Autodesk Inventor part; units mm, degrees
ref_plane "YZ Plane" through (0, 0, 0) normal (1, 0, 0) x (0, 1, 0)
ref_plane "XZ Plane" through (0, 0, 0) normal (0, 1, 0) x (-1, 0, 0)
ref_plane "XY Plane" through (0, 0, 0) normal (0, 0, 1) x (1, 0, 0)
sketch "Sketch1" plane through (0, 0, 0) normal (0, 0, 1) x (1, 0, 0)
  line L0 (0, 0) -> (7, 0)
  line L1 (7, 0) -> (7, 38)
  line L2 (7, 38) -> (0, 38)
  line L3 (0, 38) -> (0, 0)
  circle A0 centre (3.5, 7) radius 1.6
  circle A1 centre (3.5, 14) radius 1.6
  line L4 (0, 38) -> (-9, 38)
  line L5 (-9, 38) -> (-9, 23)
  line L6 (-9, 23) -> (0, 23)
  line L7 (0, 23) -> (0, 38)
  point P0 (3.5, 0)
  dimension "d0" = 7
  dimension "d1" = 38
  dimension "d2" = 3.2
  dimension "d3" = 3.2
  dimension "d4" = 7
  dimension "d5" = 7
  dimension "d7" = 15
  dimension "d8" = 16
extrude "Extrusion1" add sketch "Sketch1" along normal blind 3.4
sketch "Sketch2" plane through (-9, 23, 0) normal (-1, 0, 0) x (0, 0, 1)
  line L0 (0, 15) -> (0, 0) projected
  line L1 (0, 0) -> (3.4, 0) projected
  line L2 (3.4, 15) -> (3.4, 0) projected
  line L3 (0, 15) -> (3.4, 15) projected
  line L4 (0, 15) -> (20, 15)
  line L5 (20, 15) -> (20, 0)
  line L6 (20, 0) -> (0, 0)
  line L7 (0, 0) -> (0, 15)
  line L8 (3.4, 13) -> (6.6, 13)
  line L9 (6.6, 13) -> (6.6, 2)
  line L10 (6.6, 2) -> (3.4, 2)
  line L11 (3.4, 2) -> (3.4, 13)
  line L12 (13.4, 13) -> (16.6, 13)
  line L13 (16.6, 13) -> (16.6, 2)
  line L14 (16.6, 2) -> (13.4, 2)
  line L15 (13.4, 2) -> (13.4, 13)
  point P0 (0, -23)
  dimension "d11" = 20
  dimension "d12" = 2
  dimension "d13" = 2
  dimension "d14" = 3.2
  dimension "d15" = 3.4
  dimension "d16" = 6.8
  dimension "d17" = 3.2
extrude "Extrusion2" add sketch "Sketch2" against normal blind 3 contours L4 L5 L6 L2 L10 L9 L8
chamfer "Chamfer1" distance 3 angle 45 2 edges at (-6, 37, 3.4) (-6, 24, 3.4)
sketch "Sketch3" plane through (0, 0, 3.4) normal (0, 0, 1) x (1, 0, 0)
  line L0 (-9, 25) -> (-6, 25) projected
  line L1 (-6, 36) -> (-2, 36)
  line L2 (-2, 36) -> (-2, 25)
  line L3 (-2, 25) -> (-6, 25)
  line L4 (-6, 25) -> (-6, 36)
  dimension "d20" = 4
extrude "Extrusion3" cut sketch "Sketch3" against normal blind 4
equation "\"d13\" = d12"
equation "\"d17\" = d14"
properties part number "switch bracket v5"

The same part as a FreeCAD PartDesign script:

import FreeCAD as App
import Part
import Sketcher
from FreeCAD import Vector


def edges_at(feature, points):
    """Names of the edges that pass closest to the given points."""
    edges = feature.Shape.Edges
    near = lambda p: min(range(len(edges)), key=lambda i: edges[i].distToShape(Part.Vertex(*p))[0])
    return sorted({f"Edge{near(p) + 1}" for p in points})

doc = App.newDocument("Part")
params = doc.addObject("Spreadsheet::Sheet", "Params")
for row, (alias, value) in enumerate([
    ("sketch1_diameter", "3.2 mm"),
    ("sketch1_width", "7 mm"),
    ("sketch1_width2", "16 mm"),
    ("sketch1_height", "38 mm"),
    ("sketch1_height2", "15 mm"),
    ("pad1_length", "3.4 mm"),
    ("sketch2_width", "2 mm"),
    ("sketch2_height", "3.2 mm"),
    ("sketch2_width2", "11 mm"),
    ("pad2_length", "3 mm"),
    ("chamfer_size", "3 mm"),
    ("sketch3_width", "4 mm"),
    ("sketch3_height", "11 mm"),
    ("pocket1_length", "4 mm"),
], start=1):
    params.set(f"A{row}", alias)
    params.set(f"B{row}", "=" + value)
    params.setAlias(f"B{row}", alias)

body = doc.addObject("PartDesign::Body", "Body")

sketch1 = body.newObject("Sketcher::SketchObject", "Sketch")
sketch1.AttachmentSupport = (doc.getObject("XY_Plane"), [""])
sketch1.MapMode = "FlatFace"
sketch1.addGeometry([
    Part.LineSegment(Vector(0, 23, 0), Vector(0, 0, 0)),
    Part.LineSegment(Vector(0, 0, 0), Vector(7, 0, 0)),
    Part.LineSegment(Vector(7, 0, 0), Vector(7, 38, 0)),
    Part.LineSegment(Vector(7, 38, 0), Vector(-9, 38, 0)),
    Part.LineSegment(Vector(-9, 38, 0), Vector(-9, 23, 0)),
    Part.LineSegment(Vector(-9, 23, 0), Vector(0, 23, 0)),
    Part.Circle(Vector(3.5, 7, 0), Vector(0, 0, 1), 1.6),
    Part.Circle(Vector(3.5, 14, 0), Vector(0, 0, 1), 1.6),
], False)
sketch1.addConstraint([
    Sketcher.Constraint("Coincident", 0, 2, 1, 1),
    Sketcher.Constraint("Coincident", 1, 2, 2, 1),
    Sketcher.Constraint("Coincident", 2, 2, 3, 1),
    Sketcher.Constraint("Coincident", 3, 2, 4, 1),
    Sketcher.Constraint("Coincident", 4, 2, 5, 1),
    Sketcher.Constraint("Coincident", 5, 2, 0, 1),
    Sketcher.Constraint("Vertical", 0),
    Sketcher.Constraint("Horizontal", 1),
    Sketcher.Constraint("Vertical", 2),
    Sketcher.Constraint("Horizontal", 3),
    Sketcher.Constraint("Vertical", 4),
    Sketcher.Constraint("Horizontal", 5),
    Sketcher.Constraint("Coincident", 0, 2, -1, 1),
    Sketcher.Constraint("Equal", 6, 7),
    Sketcher.Constraint("Vertical", 6, 3, 7, 3),
    Sketcher.Constraint("Diameter", 6, 3.2),
    Sketcher.Constraint("DistanceX", 1, 1, 1, 2, 7.0),
    Sketcher.Constraint("DistanceX", 3, 2, 3, 1, 16.0),
    Sketcher.Constraint("DistanceY", 2, 1, 2, 2, 38.0),
    Sketcher.Constraint("DistanceY", 4, 2, 4, 1, 15.0),
    Sketcher.Constraint("DistanceY", -1, 1, 6, 3, 7.0),
    Sketcher.Constraint("DistanceY", 6, 3, 7, 3, 7.0),
    Sketcher.Constraint("DistanceX", -1, 1, 6, 3, 3.5),
])
sketch1.setExpression("Constraints[15]", "Params.sketch1_diameter")
sketch1.setExpression("Constraints[16]", "Params.sketch1_width")
sketch1.setExpression("Constraints[17]", "Params.sketch1_width2")
sketch1.setExpression("Constraints[18]", "Params.sketch1_height")
sketch1.setExpression("Constraints[19]", "Params.sketch1_height2")
pad1 = body.newObject("PartDesign::Pad", "Pad")
pad1.Profile = sketch1
pad1.setExpression("Length", "Params.pad1_length")

sketch2 = body.newObject("Sketcher::SketchObject", "Sketch001")
sketch2.AttachmentSupport = (doc.getObject("YZ_Plane"), [""])
sketch2.MapMode = "FlatFace"
sketch2.AttachmentOffset = App.Placement(Vector(0, 0, -9), App.Rotation())
sketch2.addGeometry([
    Part.LineSegment(Vector(38, 20, 0), Vector(38, 3.4, 0)),
    Part.LineSegment(Vector(38, 3.4, 0), Vector(36, 3.4, 0)),
    Part.LineSegment(Vector(36, 3.4, 0), Vector(36, 6.6, 0)),
    Part.LineSegment(Vector(36, 6.6, 0), Vector(25, 6.6, 0)),
    Part.LineSegment(Vector(25, 6.6, 0), Vector(25, 3.4, 0)),
    Part.LineSegment(Vector(25, 3.4, 0), Vector(23, 3.4, 0)),
    Part.LineSegment(Vector(23, 3.4, 0), Vector(23, 20, 0)),
    Part.LineSegment(Vector(23, 20, 0), Vector(38, 20, 0)),
    Part.LineSegment(Vector(25, 13.4, 0), Vector(36, 13.4, 0)),
    Part.LineSegment(Vector(36, 13.4, 0), Vector(36, 16.6, 0)),
    Part.LineSegment(Vector(36, 16.6, 0), Vector(25, 16.6, 0)),
    Part.LineSegment(Vector(25, 16.6, 0), Vector(25, 13.4, 0)),
], False)
sketch2.addConstraint([
    Sketcher.Constraint("Coincident", 0, 2, 1, 1),
    Sketcher.Constraint("Coincident", 1, 2, 2, 1),
    Sketcher.Constraint("Coincident", 2, 2, 3, 1),
    Sketcher.Constraint("Coincident", 3, 2, 4, 1),
    Sketcher.Constraint("Coincident", 4, 2, 5, 1),
    Sketcher.Constraint("Coincident", 5, 2, 6, 1),
    Sketcher.Constraint("Coincident", 6, 2, 7, 1),
    Sketcher.Constraint("Coincident", 7, 2, 0, 1),
    Sketcher.Constraint("Coincident", 8, 2, 9, 1),
    Sketcher.Constraint("Coincident", 9, 2, 10, 1),
    Sketcher.Constraint("Coincident", 10, 2, 11, 1),
    Sketcher.Constraint("Coincident", 11, 2, 8, 1),
    Sketcher.Constraint("Vertical", 0),
    Sketcher.Constraint("Horizontal", 1),
    Sketcher.Constraint("Vertical", 2),
    Sketcher.Constraint("Horizontal", 3),
    Sketcher.Constraint("Vertical", 4),
    Sketcher.Constraint("Horizontal", 5),
    Sketcher.Constraint("Vertical", 6),
    Sketcher.Constraint("Horizontal", 7),
    Sketcher.Constraint("Horizontal", 8),
    Sketcher.Constraint("Vertical", 9),
    Sketcher.Constraint("Horizontal", 10),
    Sketcher.Constraint("Vertical", 11),
    Sketcher.Constraint("Horizontal", 1, 2, 4, 2),
    Sketcher.Constraint("Vertical", 2, 2, 8, 2),
    Sketcher.Constraint("Vertical", 4, 2, 10, 2),
    Sketcher.Constraint("Equal", 1, 5),
    Sketcher.Constraint("Equal", 4, 9),
    Sketcher.Constraint("DistanceX", 1, 2, 1, 1, 2.0),
    Sketcher.Constraint("DistanceY", 2, 1, 2, 2, 3.2),
    Sketcher.Constraint("DistanceY", -1, 1, 6, 2, 20.0),
    Sketcher.Constraint("DistanceY", -1, 1, 0, 2, 3.4),
    Sketcher.Constraint("DistanceY", 2, 2, 8, 2, 6.8),
    Sketcher.Constraint("DistanceX", 3, 2, 3, 1, 11.0),
    Sketcher.Constraint("DistanceX", -1, 1, 0, 2, 38.0),
])
sketch2.setExpression("Constraints[29]", "Params.sketch2_width")
sketch2.setExpression("Constraints[30]", "Params.sketch2_height")
sketch2.setExpression("Constraints[34]", "Params.sketch2_width2")
pad2 = body.newObject("PartDesign::Pad", "Pad001")
pad2.Profile = sketch2
pad2.setExpression("Length", "Params.pad2_length")
doc.recompute()

chamfer = body.newObject("PartDesign::Chamfer", "Chamfer")
chamfer.Base = (pad2, edges_at(pad2, [(-6, 37, 3.4), (-6, 24, 3.4)]))
chamfer.setExpression("Size", "Params.chamfer_size")

sketch3 = body.newObject("Sketcher::SketchObject", "Sketch002")
sketch3.AttachmentSupport = (doc.getObject("XY_Plane"), [""])
sketch3.MapMode = "FlatFace"
sketch3.AttachmentOffset = App.Placement(Vector(0, 0, 3.4), App.Rotation())
sketch3.addGeometry([
    Part.LineSegment(Vector(-2, 36, 0), Vector(-6, 36, 0)),
    Part.LineSegment(Vector(-6, 36, 0), Vector(-6, 25, 0)),
    Part.LineSegment(Vector(-6, 25, 0), Vector(-2, 25, 0)),
    Part.LineSegment(Vector(-2, 25, 0), Vector(-2, 36, 0)),
], False)
sketch3.addConstraint([
    Sketcher.Constraint("Coincident", 0, 2, 1, 1),
    Sketcher.Constraint("Coincident", 1, 2, 2, 1),
    Sketcher.Constraint("Coincident", 2, 2, 3, 1),
    Sketcher.Constraint("Coincident", 3, 2, 0, 1),
    Sketcher.Constraint("Horizontal", 0),
    Sketcher.Constraint("Vertical", 1),
    Sketcher.Constraint("Horizontal", 2),
    Sketcher.Constraint("Vertical", 3),
    Sketcher.Constraint("DistanceX", 0, 2, 0, 1, 4.0),
    Sketcher.Constraint("DistanceY", 1, 2, 1, 1, 11.0),
    Sketcher.Constraint("DistanceX", 0, 2, -1, 1, 6.0),
    Sketcher.Constraint("DistanceY", -1, 1, 0, 2, 36.0),
])
sketch3.setExpression("Constraints[8]", "Params.sketch3_width")
sketch3.setExpression("Constraints[9]", "Params.sketch3_height")
pocket1 = body.newObject("PartDesign::Pocket", "Pocket")
pocket1.Profile = sketch3
pocket1.setExpression("Length", "Params.pocket1_length")

doc.recompute()
